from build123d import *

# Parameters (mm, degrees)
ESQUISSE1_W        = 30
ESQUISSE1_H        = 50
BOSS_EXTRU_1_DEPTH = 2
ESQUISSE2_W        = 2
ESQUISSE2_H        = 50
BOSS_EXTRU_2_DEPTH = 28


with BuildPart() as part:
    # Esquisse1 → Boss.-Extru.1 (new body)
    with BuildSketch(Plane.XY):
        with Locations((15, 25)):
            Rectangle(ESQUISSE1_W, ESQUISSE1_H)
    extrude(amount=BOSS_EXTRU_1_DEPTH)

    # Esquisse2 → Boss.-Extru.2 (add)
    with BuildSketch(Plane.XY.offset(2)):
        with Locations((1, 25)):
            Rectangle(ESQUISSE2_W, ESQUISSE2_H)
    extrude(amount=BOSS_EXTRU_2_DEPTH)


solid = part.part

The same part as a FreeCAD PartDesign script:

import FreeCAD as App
import Part
import Sketcher
Q = App.Units.Quantity

doc = App.newDocument("Part")
params = doc.addObject("Spreadsheet::Sheet", "Params")
for row, (alias, value) in enumerate([
    ("sketch1_width", "30 mm"),
    ("sketch1_height", "50 mm"),
    ("pad1_length", "2 mm"),
    ("sketch2_width", "2 mm"),
    ("sketch2_height", "50 mm"),
    ("pad2_length", "28 mm"),
], start=1):
    params.set(f"A{row}", alias)
    params.set(f"B{row}", "=" + value)
    params.setAlias(f"B{row}", alias)

body = doc.addObject("PartDesign::Body", "Body")

# Sketch on XY plane
sketch1 = body.newObject("Sketcher::SketchObject", "Sketch")
sketch1.AttachmentSupport = (doc.getObject("XY_Plane"), [""])
sketch1.MapMode = "FlatFace"
sketch1.addGeometry([
    Part.LineSegment(App.Vector(0, 50, 0), App.Vector(0, 0, 0)),
    Part.LineSegment(App.Vector(0, 0, 0), App.Vector(30, 0, 0)),
    Part.LineSegment(App.Vector(30, 0, 0), App.Vector(30, 50, 0)),
    Part.LineSegment(App.Vector(30, 50, 0), App.Vector(0, 50, 0)),
], False)
sketch1.addConstraint([
    Sketcher.Constraint("Coincident", 0, 2, 1, 1),
    Sketcher.Constraint("Coincident", 1, 2, 2, 1),
    Sketcher.Constraint("Coincident", 2, 2, 3, 1),
    Sketcher.Constraint("Coincident", 3, 2, 0, 1),
    Sketcher.Constraint("Vertical", 0),
    Sketcher.Constraint("Horizontal", 1),
    Sketcher.Constraint("Vertical", 2),
    Sketcher.Constraint("Horizontal", 3),
    Sketcher.Constraint("Coincident", 0, 2, -1, 1),
    Sketcher.Constraint("DistanceX", 1, 1, 1, 2, Q("30 mm")),
    Sketcher.Constraint("DistanceY", 0, 2, 0, 1, Q("50 mm")),
])
sketch1.setExpression("Constraints[9]", "Params.sketch1_width")
sketch1.setExpression("Constraints[10]", "Params.sketch1_height")
pad1 = body.newObject("PartDesign::Pad", "Pad")
pad1.Profile = sketch1
pad1.setExpression("Length", "Params.pad1_length")

# Sketch on XY plane
sketch2 = body.newObject("Sketcher::SketchObject", "Sketch001")
sketch2.AttachmentSupport = (doc.getObject("XY_Plane"), [""])
sketch2.MapMode = "FlatFace"
sketch2.AttachmentOffset = App.Placement(App.Vector(0, 0, 2), App.Rotation())
sketch2.addGeometry([
    Part.LineSegment(App.Vector(0, 50, 0), App.Vector(0, 0, 0)),
    Part.LineSegment(App.Vector(0, 0, 0), App.Vector(2, 0, 0)),
    Part.LineSegment(App.Vector(2, 0, 0), App.Vector(2, 50, 0)),
    Part.LineSegment(App.Vector(2, 50, 0), App.Vector(0, 50, 0)),
], False)
sketch2.addConstraint([
    Sketcher.Constraint("Coincident", 0, 2, 1, 1),
    Sketcher.Constraint("Coincident", 1, 2, 2, 1),
    Sketcher.Constraint("Coincident", 2, 2, 3, 1),
    Sketcher.Constraint("Coincident", 3, 2, 0, 1),
    Sketcher.Constraint("Vertical", 0),
    Sketcher.Constraint("Horizontal", 1),
    Sketcher.Constraint("Vertical", 2),
    Sketcher.Constraint("Horizontal", 3),
    Sketcher.Constraint("Coincident", 0, 2, -1, 1),
    Sketcher.Constraint("DistanceX", 1, 1, 1, 2, Q("2 mm")),
    Sketcher.Constraint("DistanceY", 0, 2, 0, 1, Q("50 mm")),
])
sketch2.setExpression("Constraints[9]", "Params.sketch2_width")
sketch2.setExpression("Constraints[10]", "Params.sketch2_height")
pad2 = body.newObject("PartDesign::Pad", "Pad001")
pad2.Profile = sketch2
pad2.setExpression("Length", "Params.pad2_length")

doc.recompute()
